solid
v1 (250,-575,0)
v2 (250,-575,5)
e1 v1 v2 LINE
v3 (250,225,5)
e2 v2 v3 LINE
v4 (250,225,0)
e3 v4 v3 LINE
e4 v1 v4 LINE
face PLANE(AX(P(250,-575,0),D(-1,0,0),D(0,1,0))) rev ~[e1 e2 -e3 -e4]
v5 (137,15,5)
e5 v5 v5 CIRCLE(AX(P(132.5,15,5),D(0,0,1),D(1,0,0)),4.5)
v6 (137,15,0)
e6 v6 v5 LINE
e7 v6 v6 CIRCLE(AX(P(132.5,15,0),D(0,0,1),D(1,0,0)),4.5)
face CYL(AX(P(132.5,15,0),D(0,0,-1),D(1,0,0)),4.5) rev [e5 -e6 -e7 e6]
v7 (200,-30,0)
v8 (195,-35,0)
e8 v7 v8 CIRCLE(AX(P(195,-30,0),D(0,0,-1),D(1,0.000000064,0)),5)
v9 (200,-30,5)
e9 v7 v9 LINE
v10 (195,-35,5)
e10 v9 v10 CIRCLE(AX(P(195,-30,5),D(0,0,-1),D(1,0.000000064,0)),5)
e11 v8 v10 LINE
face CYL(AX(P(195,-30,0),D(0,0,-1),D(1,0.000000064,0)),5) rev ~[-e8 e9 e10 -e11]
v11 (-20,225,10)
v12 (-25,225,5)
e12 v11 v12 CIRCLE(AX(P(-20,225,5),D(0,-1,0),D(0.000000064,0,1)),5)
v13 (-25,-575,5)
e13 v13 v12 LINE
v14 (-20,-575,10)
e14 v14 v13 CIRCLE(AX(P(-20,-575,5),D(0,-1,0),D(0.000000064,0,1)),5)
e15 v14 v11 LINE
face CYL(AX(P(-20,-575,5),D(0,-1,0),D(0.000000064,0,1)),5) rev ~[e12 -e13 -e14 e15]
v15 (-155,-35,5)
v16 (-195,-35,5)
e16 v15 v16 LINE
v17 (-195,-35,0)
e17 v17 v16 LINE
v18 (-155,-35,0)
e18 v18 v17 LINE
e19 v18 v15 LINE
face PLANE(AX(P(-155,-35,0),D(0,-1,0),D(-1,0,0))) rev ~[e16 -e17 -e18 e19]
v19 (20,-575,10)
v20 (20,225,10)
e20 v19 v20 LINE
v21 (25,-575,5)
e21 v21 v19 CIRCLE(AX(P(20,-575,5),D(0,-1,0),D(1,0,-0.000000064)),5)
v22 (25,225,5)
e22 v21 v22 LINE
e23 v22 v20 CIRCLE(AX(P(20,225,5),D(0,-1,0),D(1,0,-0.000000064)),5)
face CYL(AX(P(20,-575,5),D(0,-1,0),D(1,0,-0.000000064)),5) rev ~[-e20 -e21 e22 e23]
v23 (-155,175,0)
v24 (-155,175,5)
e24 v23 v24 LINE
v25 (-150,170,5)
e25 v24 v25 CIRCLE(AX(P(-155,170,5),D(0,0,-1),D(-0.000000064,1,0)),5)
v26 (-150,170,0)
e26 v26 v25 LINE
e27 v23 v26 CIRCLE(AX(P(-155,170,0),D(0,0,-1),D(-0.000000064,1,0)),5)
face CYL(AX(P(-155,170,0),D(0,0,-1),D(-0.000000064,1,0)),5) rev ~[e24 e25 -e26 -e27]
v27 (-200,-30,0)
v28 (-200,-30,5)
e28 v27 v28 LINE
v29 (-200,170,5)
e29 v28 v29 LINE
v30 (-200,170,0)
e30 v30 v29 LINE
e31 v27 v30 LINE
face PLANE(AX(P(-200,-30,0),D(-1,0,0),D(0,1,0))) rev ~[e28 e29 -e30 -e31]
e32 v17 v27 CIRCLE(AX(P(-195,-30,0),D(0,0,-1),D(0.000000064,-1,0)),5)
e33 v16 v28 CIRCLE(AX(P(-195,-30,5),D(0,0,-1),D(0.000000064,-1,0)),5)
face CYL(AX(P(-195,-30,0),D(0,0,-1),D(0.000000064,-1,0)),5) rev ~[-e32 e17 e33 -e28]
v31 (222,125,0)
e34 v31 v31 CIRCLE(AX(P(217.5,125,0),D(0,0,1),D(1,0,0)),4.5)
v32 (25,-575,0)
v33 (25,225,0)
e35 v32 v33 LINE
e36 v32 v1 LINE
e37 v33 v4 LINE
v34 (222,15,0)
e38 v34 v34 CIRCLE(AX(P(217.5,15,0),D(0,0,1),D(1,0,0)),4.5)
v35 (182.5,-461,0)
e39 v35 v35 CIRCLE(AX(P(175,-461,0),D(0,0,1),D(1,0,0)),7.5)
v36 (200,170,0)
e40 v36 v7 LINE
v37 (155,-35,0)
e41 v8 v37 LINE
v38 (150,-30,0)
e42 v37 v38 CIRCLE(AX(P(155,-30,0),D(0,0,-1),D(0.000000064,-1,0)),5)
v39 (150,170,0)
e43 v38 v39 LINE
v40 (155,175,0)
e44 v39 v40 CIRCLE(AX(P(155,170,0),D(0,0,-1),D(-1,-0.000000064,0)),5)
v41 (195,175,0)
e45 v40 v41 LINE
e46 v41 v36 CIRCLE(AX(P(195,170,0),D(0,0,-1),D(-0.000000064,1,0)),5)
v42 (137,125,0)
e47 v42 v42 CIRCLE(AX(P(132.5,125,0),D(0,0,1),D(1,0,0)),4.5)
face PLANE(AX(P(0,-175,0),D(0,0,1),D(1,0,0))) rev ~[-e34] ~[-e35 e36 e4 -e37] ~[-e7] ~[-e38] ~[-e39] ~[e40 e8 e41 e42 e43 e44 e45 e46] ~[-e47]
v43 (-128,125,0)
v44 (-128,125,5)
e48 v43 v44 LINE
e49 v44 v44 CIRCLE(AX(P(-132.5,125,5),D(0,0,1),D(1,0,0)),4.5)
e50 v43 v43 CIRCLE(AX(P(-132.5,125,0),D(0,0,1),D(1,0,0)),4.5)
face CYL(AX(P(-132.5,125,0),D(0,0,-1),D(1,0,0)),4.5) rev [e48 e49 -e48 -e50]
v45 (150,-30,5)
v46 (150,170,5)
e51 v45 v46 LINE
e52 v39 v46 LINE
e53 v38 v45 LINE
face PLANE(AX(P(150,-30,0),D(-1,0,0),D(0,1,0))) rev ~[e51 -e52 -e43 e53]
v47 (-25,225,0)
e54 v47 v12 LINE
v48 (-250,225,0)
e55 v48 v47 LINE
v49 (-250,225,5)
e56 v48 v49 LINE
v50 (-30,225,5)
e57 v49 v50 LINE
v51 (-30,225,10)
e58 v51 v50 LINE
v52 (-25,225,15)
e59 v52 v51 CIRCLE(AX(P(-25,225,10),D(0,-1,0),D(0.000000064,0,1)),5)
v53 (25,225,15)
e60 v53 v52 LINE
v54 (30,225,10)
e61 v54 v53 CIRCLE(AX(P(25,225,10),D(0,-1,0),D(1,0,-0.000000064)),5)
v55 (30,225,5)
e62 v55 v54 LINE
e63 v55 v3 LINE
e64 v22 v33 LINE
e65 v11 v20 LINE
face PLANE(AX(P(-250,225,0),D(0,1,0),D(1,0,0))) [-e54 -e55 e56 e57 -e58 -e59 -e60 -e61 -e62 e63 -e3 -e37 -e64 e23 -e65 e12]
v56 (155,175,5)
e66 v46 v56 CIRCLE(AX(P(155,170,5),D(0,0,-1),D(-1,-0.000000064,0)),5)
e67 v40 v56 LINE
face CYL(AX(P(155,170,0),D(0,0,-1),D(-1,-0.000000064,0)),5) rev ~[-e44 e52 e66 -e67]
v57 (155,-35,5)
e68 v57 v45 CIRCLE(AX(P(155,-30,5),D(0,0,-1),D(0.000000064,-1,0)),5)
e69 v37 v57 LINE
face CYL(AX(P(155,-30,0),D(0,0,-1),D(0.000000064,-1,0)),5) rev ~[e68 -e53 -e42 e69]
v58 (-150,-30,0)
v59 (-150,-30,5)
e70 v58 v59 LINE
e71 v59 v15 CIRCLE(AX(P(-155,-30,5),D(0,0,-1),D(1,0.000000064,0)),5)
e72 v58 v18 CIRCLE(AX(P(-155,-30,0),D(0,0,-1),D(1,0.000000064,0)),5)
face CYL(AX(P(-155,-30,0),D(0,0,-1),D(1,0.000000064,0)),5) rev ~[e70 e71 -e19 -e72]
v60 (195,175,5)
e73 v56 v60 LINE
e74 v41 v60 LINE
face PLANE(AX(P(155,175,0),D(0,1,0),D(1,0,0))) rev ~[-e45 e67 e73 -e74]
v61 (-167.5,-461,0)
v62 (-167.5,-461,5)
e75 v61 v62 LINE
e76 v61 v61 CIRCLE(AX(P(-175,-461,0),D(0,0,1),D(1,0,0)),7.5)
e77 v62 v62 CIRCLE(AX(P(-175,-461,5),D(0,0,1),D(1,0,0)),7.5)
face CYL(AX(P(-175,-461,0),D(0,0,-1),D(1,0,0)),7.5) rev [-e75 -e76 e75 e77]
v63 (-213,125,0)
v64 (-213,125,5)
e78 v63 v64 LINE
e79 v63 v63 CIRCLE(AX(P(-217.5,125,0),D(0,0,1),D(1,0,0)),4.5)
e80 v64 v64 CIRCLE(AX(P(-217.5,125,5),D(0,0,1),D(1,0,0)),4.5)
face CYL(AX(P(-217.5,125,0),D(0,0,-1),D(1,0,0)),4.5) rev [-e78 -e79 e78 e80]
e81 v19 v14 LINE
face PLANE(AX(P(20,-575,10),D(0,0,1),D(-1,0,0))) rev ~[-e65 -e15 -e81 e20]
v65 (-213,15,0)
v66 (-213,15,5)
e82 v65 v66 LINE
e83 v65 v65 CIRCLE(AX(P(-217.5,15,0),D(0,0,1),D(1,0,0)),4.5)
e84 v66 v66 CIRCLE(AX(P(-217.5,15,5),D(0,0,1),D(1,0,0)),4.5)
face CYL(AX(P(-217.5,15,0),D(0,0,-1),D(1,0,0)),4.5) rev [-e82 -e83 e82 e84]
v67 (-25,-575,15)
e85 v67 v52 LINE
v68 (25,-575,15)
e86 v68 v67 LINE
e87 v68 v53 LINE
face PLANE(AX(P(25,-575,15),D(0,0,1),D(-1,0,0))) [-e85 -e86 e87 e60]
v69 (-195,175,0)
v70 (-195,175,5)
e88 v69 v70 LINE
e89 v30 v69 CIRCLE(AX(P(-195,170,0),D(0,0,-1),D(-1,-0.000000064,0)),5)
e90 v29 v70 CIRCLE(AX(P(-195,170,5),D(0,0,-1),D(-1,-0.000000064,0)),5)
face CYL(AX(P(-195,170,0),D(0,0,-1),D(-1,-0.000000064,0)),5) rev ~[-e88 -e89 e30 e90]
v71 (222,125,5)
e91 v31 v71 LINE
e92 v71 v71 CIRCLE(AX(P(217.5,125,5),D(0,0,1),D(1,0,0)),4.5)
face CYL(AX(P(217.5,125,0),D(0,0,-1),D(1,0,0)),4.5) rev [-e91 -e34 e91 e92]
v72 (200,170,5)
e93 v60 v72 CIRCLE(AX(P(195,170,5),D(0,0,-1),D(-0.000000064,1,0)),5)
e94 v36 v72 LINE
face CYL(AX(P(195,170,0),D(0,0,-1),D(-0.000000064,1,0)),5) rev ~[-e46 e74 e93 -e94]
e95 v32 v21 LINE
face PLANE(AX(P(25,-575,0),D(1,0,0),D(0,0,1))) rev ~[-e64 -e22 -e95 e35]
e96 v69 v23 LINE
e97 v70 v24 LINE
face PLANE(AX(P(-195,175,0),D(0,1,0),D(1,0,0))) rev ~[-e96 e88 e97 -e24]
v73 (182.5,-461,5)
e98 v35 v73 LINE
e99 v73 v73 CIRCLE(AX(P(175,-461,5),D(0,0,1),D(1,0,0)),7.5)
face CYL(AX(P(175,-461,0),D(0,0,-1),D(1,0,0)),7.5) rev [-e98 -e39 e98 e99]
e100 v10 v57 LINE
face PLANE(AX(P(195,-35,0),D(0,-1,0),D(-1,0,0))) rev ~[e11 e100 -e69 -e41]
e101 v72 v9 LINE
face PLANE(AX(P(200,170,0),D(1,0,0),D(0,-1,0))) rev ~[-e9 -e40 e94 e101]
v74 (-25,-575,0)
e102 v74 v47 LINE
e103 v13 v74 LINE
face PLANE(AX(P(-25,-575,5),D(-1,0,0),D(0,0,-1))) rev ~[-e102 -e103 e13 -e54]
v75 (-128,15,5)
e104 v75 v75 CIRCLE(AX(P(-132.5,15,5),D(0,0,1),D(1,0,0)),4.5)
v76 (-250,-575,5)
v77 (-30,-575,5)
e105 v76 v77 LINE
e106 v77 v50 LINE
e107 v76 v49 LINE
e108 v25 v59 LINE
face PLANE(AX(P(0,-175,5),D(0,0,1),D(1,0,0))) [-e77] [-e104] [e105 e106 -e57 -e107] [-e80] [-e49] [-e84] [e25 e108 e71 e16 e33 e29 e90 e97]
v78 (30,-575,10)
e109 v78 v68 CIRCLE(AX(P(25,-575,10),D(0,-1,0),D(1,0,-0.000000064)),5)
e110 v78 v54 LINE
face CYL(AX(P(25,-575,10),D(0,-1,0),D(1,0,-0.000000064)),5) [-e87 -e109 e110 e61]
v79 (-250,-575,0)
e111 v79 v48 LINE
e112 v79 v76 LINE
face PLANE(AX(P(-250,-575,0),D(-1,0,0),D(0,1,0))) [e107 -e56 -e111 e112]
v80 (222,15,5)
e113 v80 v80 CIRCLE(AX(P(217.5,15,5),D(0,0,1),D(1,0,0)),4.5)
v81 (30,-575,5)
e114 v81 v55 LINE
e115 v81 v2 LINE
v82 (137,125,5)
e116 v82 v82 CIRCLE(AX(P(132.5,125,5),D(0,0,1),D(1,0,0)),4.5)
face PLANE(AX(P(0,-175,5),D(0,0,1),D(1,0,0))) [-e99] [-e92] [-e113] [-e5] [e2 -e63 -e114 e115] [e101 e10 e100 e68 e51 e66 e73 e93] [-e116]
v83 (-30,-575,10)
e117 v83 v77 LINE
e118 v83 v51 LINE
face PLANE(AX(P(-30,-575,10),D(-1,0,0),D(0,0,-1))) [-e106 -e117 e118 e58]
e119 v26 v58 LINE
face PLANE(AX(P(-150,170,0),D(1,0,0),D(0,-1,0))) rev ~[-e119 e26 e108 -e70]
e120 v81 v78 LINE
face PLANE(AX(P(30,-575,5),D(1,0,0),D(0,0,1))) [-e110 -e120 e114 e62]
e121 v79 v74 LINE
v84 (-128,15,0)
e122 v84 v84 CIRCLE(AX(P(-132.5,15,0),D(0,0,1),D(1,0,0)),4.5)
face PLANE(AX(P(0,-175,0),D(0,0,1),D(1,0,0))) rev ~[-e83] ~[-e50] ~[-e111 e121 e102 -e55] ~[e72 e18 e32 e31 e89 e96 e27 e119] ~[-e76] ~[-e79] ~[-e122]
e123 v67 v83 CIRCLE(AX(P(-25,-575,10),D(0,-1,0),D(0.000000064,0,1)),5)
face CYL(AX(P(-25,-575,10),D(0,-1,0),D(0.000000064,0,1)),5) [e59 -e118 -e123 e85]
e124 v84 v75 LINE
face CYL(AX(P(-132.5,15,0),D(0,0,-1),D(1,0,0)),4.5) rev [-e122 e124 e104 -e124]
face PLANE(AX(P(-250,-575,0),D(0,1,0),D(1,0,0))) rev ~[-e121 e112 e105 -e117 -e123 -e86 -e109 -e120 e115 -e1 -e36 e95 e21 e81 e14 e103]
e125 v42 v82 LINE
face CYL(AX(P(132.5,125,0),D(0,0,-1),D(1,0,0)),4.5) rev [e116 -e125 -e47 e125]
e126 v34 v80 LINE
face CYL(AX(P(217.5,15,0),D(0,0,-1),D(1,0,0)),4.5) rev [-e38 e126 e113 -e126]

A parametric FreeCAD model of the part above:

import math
import FreeCAD as App
import Part
import Sketcher
Q = App.Units.Quantity


def add_polygon(sketch, points):
    """Adds a closed chain of lines whose ends are joined by coincident constraints."""
    first, n = sketch.GeometryCount, len(points)
    for a, b in zip(points, points[1:] + points[:1]):
        sketch.addGeometry(Part.LineSegment(App.Vector(*a, 0), App.Vector(*b, 0)), False)
    for i in range(n):
        sketch.addConstraint(Sketcher.Constraint("Coincident", first + i, 2, first + (i + 1) % n, 1))

doc = App.newDocument("Part")
body = doc.addObject("PartDesign::Body", "Body")

sketch1 = body.newObject("Sketcher::SketchObject", "Sketch")
sketch1.AttachmentSupport = (doc.getObject("XY_Plane"), [""])
sketch1.MapMode = "FlatFace"
add_polygon(sketch1, [(-250, 225), (-250, -575), (250, -575), (250, 225)])
sketch1.addGeometry(Part.Circle(App.Vector(-175, -461, 0), App.Vector(0, 0, 1), 7.5), False)
sketch1.addGeometry(Part.Circle(App.Vector(175, -461, 0), App.Vector(0, 0, 1), 7.5), False)
sketch1.addGeometry(Part.Circle(App.Vector(-217.5, 15, 0), App.Vector(0, 0, 1), 4.5), False)
sketch1.addGeometry(Part.LineSegment(App.Vector(-200, -30, 0), App.Vector(-200, 170, 0)), False)
sketch1.addGeometry(Part.ArcOfCircle(Part.Circle(App.Vector(-195, 170, 0), App.Vector(0, 0, 1), 5), math.radians(90), math.radians(180)), False)
sketch1.addGeometry(Part.LineSegment(App.Vector(-195, 175, 0), App.Vector(-155, 175, 0)), False)
sketch1.addGeometry(Part.ArcOfCircle(Part.Circle(App.Vector(-155, 170, 0), App.Vector(0, 0, 1), 5), math.radians(0), math.radians(90)), False)
sketch1.addGeometry(Part.LineSegment(App.Vector(-150, 170, 0), App.Vector(-150, -30, 0)), False)
sketch1.addGeometry(Part.ArcOfCircle(Part.Circle(App.Vector(-155, -30, 0), App.Vector(0, 0, 1), 5), math.radians(-90), math.radians(0)), False)
sketch1.addGeometry(Part.LineSegment(App.Vector(-155, -35, 0), App.Vector(-195, -35, 0)), False)
sketch1.addGeometry(Part.ArcOfCircle(Part.Circle(App.Vector(-195, -30, 0), App.Vector(0, 0, 1), 5), math.radians(180), math.radians(270)), False)
sketch1.addGeometry(Part.Circle(App.Vector(-132.5, 15, 0), App.Vector(0, 0, 1), 4.5), False)
sketch1.addGeometry(Part.Circle(App.Vector(-217.5, 125, 0), App.Vector(0, 0, 1), 4.5), False)
sketch1.addGeometry(Part.Circle(App.Vector(-132.5, 125, 0), App.Vector(0, 0, 1), 4.5), False)
sketch1.addGeometry(Part.Circle(App.Vector(132.5, 15, 0), App.Vector(0, 0, 1), 4.5), False)
sketch1.addGeometry(Part.Circle(App.Vector(217.5, 15, 0), App.Vector(0, 0, 1), 4.5), False)
sketch1.addGeometry(Part.ArcOfCircle(Part.Circle(App.Vector(195, -30, 0), App.Vector(0, 0, 1), 5), math.radians(-90), math.radians(0)), False)
sketch1.addGeometry(Part.LineSegment(App.Vector(195, -35, 0), App.Vector(155, -35, 0)), False)
sketch1.addGeometry(Part.ArcOfCircle(Part.Circle(App.Vector(155, -30, 0), App.Vector(0, 0, 1), 5), math.radians(180), math.radians(270)), False)
sketch1.addGeometry(Part.LineSegment(App.Vector(150, -30, 0), App.Vector(150, 170, 0)), False)
sketch1.addGeometry(Part.ArcOfCircle(Part.Circle(App.Vector(155, 170, 0), App.Vector(0, 0, 1), 5), math.radians(90), math.radians(180)), False)
sketch1.addGeometry(Part.LineSegment(App.Vector(155, 175, 0), App.Vector(195, 175, 0)), False)
sketch1.addGeometry(Part.ArcOfCircle(Part.Circle(App.Vector(195, 170, 0), App.Vector(0, 0, 1), 5), math.radians(0), math.radians(90)), False)
sketch1.addGeometry(Part.LineSegment(App.Vector(200, 170, 0), App.Vector(200, -30, 0)), False)
sketch1.addGeometry(Part.Circle(App.Vector(132.5, 125, 0), App.Vector(0, 0, 1), 4.5), False)
sketch1.addGeometry(Part.Circle(App.Vector(217.5, 125, 0), App.Vector(0, 0, 1), 4.5), False)
sketch1.addConstraint(Sketcher.Constraint("Tangent", 7, 2, 8, 2))
sketch1.addConstraint(Sketcher.Constraint("Tangent", 8, 1, 9, 1))
sketch1.addConstraint(Sketcher.Constraint("Tangent", 9, 2, 10, 2))
sketch1.addConstraint(Sketcher.Constraint("Tangent", 10, 1, 11, 1))
sketch1.addConstraint(Sketcher.Constraint("Tangent", 11, 2, 12, 2))
sketch1.addConstraint(Sketcher.Constraint("Tangent", 12, 1, 13, 1))
sketch1.addConstraint(Sketcher.Constraint("Tangent", 13, 2, 14, 2))
sketch1.addConstraint(Sketcher.Constraint("Tangent", 14, 1, 7, 1))
sketch1.addConstraint(Sketcher.Constraint("Tangent", 20, 1, 21, 1))
sketch1.addConstraint(Sketcher.Constraint("Tangent", 21, 2, 22, 2))
sketch1.addConstraint(Sketcher.Constraint("Tangent", 22, 1, 23, 1))
sketch1.addConstraint(Sketcher.Constraint("Tangent", 23, 2, 24, 2))
sketch1.addConstraint(Sketcher.Constraint("Tangent", 24, 1, 25, 1))
sketch1.addConstraint(Sketcher.Constraint("Tangent", 25, 2, 26, 2))
sketch1.addConstraint(Sketcher.Constraint("Tangent", 26, 1, 27, 1))
sketch1.addConstraint(Sketcher.Constraint("Tangent", 27, 2, 20, 2))
sketch1.addConstraint(Sketcher.Constraint("Vertical", 0))
sketch1.addConstraint(Sketcher.Constraint("Horizontal", 1))
sketch1.addConstraint(Sketcher.Constraint("Vertical", 2))
sketch1.addConstraint(Sketcher.Constraint("Horizontal", 3))
sketch1.addConstraint(Sketcher.Constraint("Vertical", 7))
sketch1.addConstraint(Sketcher.Constraint("Horizontal", 9))
sketch1.addConstraint(Sketcher.Constraint("Vertical", 11))
sketch1.addConstraint(Sketcher.Constraint("Horizontal", 13))
sketch1.addConstraint(Sketcher.Constraint("Horizontal", 21))
sketch1.addConstraint(Sketcher.Constraint("Vertical", 23))
sketch1.addConstraint(Sketcher.Constraint("Horizontal", 25))
sketch1.addConstraint(Sketcher.Constraint("Vertical", 27))
sketch1.addConstraint(Sketcher.Constraint("Equal", 4, 5))
sketch1.addConstraint(Sketcher.Constraint("Equal", 8, 10))
sketch1.addConstraint(Sketcher.Constraint("Equal", 10, 12))
sketch1.addConstraint(Sketcher.Constraint("Equal", 12, 14))
sketch1.addConstraint(Sketcher.Constraint("Equal", 6, 15))
sketch1.addConstraint(Sketcher.Constraint("Equal", 15, 16))
sketch1.addConstraint(Sketcher.Constraint("Equal", 16, 17))
sketch1.addConstraint(Sketcher.Constraint("Equal", 17, 18))
sketch1.addConstraint(Sketcher.Constraint("Equal", 18, 19))
sketch1.addConstraint(Sketcher.Constraint("Equal", 14, 20))
sketch1.addConstraint(Sketcher.Constraint("Equal", 20, 22))
sketch1.addConstraint(Sketcher.Constraint("Equal", 22, 24))
sketch1.addConstraint(Sketcher.Constraint("Equal", 24, 26))
sketch1.addConstraint(Sketcher.Constraint("Equal", 19, 28))
sketch1.addConstraint(Sketcher.Constraint("Equal", 28, 29))
sketch1.addConstraint(Sketcher.Constraint("Symmetric", 4, 3, 5, 3, -2))
sketch1.addConstraint(Sketcher.Constraint("Symmetric", 15, 3, 18, 3, -2))
sketch1.addConstraint(Sketcher.Constraint("Symmetric", 6, 3, 19, 3, -2))
sketch1.addConstraint(Sketcher.Constraint("Symmetric", 14, 3, 20, 3, -2))
sketch1.addConstraint(Sketcher.Constraint("Symmetric", 10, 3, 24, 3, -2))
sketch1.addConstraint(Sketcher.Constraint("Symmetric", 17, 3, 28, 3, -2))
sketch1.addConstraint(Sketcher.Constraint("Symmetric", 16, 3, 29, 3, -2))
sketch1.addConstraint(Sketcher.Constraint("Horizontal", 6, 3, 15, 3))
sketch1.addConstraint(Sketcher.Constraint("Horizontal", 16, 3, 17, 3))
sketch1.addConstraint(Sketcher.Constraint("Vertical", 6, 3, 16, 3))
sketch1.addConstraint(Sketcher.Constraint("Vertical", 15, 3, 17, 3))
sketch1.addConstraint(Sketcher.Constraint("Diameter", 4, Q("15 mm")))
sketch1.addConstraint(Sketcher.Constraint("Diameter", 6, Q("9 mm")))
sketch1.addConstraint(Sketcher.Constraint("Radius", 8, Q("5 mm")))
sketch1.addConstraint(Sketcher.Constraint("DistanceX", 1, 1, 1, 2, Q("500 mm")))
sketch1.addConstraint(Sketcher.Constraint("DistanceX", 9, 1, 9, 2, Q("40 mm")))
sketch1.addConstraint(Sketcher.Constraint("DistanceY", 0, 2, 0, 1, Q("800 mm")))
sketch1.addConstraint(Sketcher.Constraint("DistanceY", 7, 1, 7, 2, Q("200 mm")))
sketch1.addConstraint(Sketcher.Constraint("DistanceX", 4, 3, -1, 1, Q("175 mm")))
sketch1.addConstraint(Sketcher.Constraint("DistanceY", 4, 3, -1, 1, Q("461 mm")))
sketch1.addConstraint(Sketcher.Constraint("DistanceY", -1, 1, 6, 3, Q("15 mm")))
sketch1.addConstraint(Sketcher.Constraint("DistanceX", 8, 3, -1, 1, Q("195 mm")))
sketch1.addConstraint(Sketcher.Constraint("DistanceY", -1, 1, 8, 3, Q("170 mm")))
sketch1.addConstraint(Sketcher.Constraint("DistanceY", -1, 1, 16, 3, Q("125 mm")))
sketch1.addConstraint(Sketcher.Constraint("DistanceX", 0, 2, -1, 1, Q("250 mm")))
sketch1.addConstraint(Sketcher.Constraint("DistanceY", 0, 2, -1, 1, Q("575 mm")))
sketch1.addConstraint(Sketcher.Constraint("DistanceX", 6, 3, 15, 3, Q("85 mm")))
sketch1.addConstraint(Sketcher.Constraint("DistanceX", 15, 3, 18, 3, Q("265 mm")))
pad1 = body.newObject("PartDesign::Pad", "Pad")
pad1.Profile = sketch1
pad1.Length = 5

sketch2 = body.newObject("Sketcher::SketchObject", "Sketch001")
sketch2.AttachmentSupport = (doc.getObject("XZ_Plane"), [""])
sketch2.MapMode = "FlatFace"
sketch2.AttachmentOffset = App.Placement(App.Vector(0, 0, 575), App.Rotation())
sketch2.addGeometry(Part.LineSegment(App.Vector(25, 15, 0), App.Vector(-25, 15, 0)), False)
sketch2.addGeometry(Part.ArcOfCircle(Part.Circle(App.Vector(-25, 10, 0), App.Vector(0, 0, 1), 5), math.radians(90), math.radians(180)), False)
sketch2.addGeometry(Part.LineSegment(App.Vector(-30, 10, 0), App.Vector(-30, 5, 0)), False)
sketch2.addGeometry(Part.LineSegment(App.Vector(-30, 5, 0), App.Vector(30, 5, 0)), False)
sketch2.addGeometry(Part.LineSegment(App.Vector(30, 5, 0), App.Vector(30, 10, 0)), False)
sketch2.addGeometry(Part.ArcOfCircle(Part.Circle(App.Vector(25, 10, 0), App.Vector(0, 0, 1), 5), math.radians(0), math.radians(90)), False)
sketch2.addConstraint(Sketcher.Constraint("Tangent", 0, 2, 1, 1))
sketch2.addConstraint(Sketcher.Constraint("Tangent", 1, 2, 2, 1))
sketch2.addConstraint(Sketcher.Constraint("Coincident", 2, 2, 3, 1))
sketch2.addConstraint(Sketcher.Constraint("Coincident", 3, 2, 4, 1))
sketch2.addConstraint(Sketcher.Constraint("Tangent", 4, 2, 5, 1))
sketch2.addConstraint(Sketcher.Constraint("Tangent", 5, 2, 0, 1))
sketch2.addConstraint(Sketcher.Constraint("Horizontal", 0))
sketch2.addConstraint(Sketcher.Constraint("Vertical", 2))
sketch2.addConstraint(Sketcher.Constraint("Horizontal", 3))
sketch2.addConstraint(Sketcher.Constraint("Vertical", 4))
sketch2.addConstraint(Sketcher.Constraint("Equal", 1, 5))
sketch2.addConstraint(Sketcher.Constraint("Radius", 1, Q("5 mm")))
sketch2.addConstraint(Sketcher.Constraint("DistanceX", 0, 2, 0, 1, Q("50 mm")))
sketch2.addConstraint(Sketcher.Constraint("DistanceY", 2, 2, 2, 1, Q("5 mm")))
sketch2.addConstraint(Sketcher.Constraint("DistanceX", 1, 3, -1, 1, Q("25 mm")))
sketch2.addConstraint(Sketcher.Constraint("DistanceY", -1, 1, 1, 3, Q("10 mm")))
pad2 = body.newObject("PartDesign::Pad", "Pad001")
pad2.Profile = sketch2
pad2.Length = 800
pad2.Reversed = True

sketch3 = body.newObject("Sketcher::SketchObject", "Sketch002")
sketch3.AttachmentSupport = (doc.getObject("XZ_Plane"), [""])
sketch3.MapMode = "FlatFace"
sketch3.AttachmentOffset = App.Placement(App.Vector(0, 0, 575), App.Rotation())
sketch3.addGeometry(Part.LineSegment(App.Vector(-25, 5, 0), App.Vector(-25, 0, 0)), False)
sketch3.addGeometry(Part.LineSegment(App.Vector(-25, 0, 0), App.Vector(25, 0, 0)), False)
sketch3.addGeometry(Part.LineSegment(App.Vector(25, 0, 0), App.Vector(25, 5, 0)), False)
sketch3.addGeometry(Part.ArcOfCircle(Part.Circle(App.Vector(20, 5, 0), App.Vector(0, 0, 1), 5), math.radians(0), math.radians(90)), False)
sketch3.addGeometry(Part.LineSegment(App.Vector(20, 10, 0), App.Vector(-20, 10, 0)), False)
sketch3.addGeometry(Part.ArcOfCircle(Part.Circle(App.Vector(-20, 5, 0), App.Vector(0, 0, 1), 5), math.radians(90), math.radians(180)), False)
sketch3.addConstraint(Sketcher.Constraint("Coincident", 0, 2, 1, 1))
sketch3.addConstraint(Sketcher.Constraint("Coincident", 1, 2, 2, 1))
sketch3.addConstraint(Sketcher.Constraint("Tangent", 2, 2, 3, 1))
sketch3.addConstraint(Sketcher.Constraint("Tangent", 3, 2, 4, 1))
sketch3.addConstraint(Sketcher.Constraint("Tangent", 4, 2, 5, 1))
sketch3.addConstraint(Sketcher.Constraint("Tangent", 5, 2, 0, 1))
sketch3.addConstraint(Sketcher.Constraint("Vertical", 0))
sketch3.addConstraint(Sketcher.Constraint("Horizontal", 1))
sketch3.addConstraint(Sketcher.Constraint("Vertical", 2))
sketch3.addConstraint(Sketcher.Constraint("Horizontal", 4))
sketch3.addConstraint(Sketcher.Constraint("Equal", 3, 5))
sketch3.addConstraint(Sketcher.Constraint("Symmetric", 0, 2, 1, 2, -1, 1))
sketch3.addConstraint(Sketcher.Constraint("Radius", 3, Q("5 mm")))
sketch3.addConstraint(Sketcher.Constraint("DistanceX", 1, 1, 1, 2, Q("50 mm")))
sketch3.addConstraint(Sketcher.Constraint("DistanceY", 0, 2, 0, 1, Q("5 mm")))
pocket1 = body.newObject("PartDesign::Pocket", "Pocket")
pocket1.Profile = sketch3
pocket1.Type = "ThroughAll"

doc.recompute()
